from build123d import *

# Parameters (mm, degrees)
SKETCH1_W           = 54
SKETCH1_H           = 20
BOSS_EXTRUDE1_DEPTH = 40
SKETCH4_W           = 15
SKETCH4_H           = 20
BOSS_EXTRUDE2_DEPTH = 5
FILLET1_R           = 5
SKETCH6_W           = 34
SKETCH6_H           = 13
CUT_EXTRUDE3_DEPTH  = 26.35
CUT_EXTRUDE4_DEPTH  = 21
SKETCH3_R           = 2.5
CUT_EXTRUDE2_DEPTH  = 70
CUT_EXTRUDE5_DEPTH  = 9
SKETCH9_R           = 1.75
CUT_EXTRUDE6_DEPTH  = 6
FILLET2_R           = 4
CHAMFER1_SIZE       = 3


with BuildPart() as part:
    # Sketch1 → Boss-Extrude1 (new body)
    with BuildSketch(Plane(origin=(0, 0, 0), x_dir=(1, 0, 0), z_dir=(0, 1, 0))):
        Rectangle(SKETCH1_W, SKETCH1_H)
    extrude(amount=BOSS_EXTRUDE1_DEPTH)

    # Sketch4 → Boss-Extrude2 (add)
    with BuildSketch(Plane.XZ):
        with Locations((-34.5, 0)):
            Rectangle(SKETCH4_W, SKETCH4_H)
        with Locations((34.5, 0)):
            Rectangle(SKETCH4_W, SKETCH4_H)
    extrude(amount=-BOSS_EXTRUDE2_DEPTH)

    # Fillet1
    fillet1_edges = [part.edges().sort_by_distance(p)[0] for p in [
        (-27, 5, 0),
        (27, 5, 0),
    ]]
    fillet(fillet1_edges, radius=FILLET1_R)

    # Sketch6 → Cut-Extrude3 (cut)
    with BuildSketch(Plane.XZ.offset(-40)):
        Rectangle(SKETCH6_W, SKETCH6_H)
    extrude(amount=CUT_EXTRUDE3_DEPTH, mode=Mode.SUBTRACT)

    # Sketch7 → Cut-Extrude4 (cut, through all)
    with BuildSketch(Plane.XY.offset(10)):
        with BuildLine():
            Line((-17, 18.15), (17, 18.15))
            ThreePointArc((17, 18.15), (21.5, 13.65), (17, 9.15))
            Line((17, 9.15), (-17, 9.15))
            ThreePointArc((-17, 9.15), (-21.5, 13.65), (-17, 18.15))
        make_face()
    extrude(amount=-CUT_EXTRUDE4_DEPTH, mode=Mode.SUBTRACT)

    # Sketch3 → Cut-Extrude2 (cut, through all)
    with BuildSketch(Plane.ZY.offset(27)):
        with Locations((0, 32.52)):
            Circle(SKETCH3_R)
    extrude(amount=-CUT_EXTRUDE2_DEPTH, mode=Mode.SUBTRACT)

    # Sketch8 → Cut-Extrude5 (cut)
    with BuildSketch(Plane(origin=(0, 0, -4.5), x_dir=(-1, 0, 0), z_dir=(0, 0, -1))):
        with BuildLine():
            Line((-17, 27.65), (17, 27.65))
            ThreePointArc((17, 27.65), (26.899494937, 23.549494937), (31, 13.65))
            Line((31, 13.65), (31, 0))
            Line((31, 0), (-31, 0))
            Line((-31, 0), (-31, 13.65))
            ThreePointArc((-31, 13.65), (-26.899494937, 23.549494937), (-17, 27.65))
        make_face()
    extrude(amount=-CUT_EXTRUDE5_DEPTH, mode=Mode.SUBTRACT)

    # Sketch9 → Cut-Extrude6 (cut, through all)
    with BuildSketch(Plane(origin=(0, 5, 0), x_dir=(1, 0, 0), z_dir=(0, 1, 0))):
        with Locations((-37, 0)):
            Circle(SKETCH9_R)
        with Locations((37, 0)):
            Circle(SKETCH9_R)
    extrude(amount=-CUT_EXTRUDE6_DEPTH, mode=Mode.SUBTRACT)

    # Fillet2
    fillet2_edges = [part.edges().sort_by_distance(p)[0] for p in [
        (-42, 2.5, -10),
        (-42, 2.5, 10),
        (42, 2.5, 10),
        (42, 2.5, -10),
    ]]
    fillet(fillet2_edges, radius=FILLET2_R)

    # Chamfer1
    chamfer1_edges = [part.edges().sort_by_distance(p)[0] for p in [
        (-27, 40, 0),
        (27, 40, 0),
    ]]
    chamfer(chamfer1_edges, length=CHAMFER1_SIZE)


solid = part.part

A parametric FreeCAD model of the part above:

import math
import FreeCAD as App
import Part
import Sketcher
from FreeCAD import Vector


def edges_at(feature, points):
    """Names of the edges that pass closest to the given points."""
    edges = feature.Shape.Edges
    near = lambda p: min(range(len(edges)), key=lambda i: edges[i].distToShape(Part.Vertex(*p))[0])
    return sorted({f"Edge{near(p) + 1}" for p in points})

doc = App.newDocument("Part")
body = doc.addObject("PartDesign::Body", "Body")

# Sketch on XZ plane
sketch1 = doc.addObject("Sketcher::SketchObject", "Sketch")
body.addObject(sketch1)
sketch1.AttachmentSupport = (doc.XZ_Plane, [""])
sketch1.MapMode = "FlatFace"
sketch1.addGeometry([
    Part.LineSegment(Vector(-27, -10, 0), Vector(-27, 10, 0)),
    Part.LineSegment(Vector(-27, 10, 0), Vector(27, 10, 0)),
    Part.LineSegment(Vector(27, 10, 0), Vector(27, -10, 0)),
    Part.LineSegment(Vector(27, -10, 0), Vector(-27, -10, 0)),
], False)
sketch1.addConstraint([
    Sketcher.Constraint("Coincident", 0, 2, 1, 1),
    Sketcher.Constraint("Coincident", 1, 2, 2, 1),
    Sketcher.Constraint("Coincident", 2, 2, 3, 1),
    Sketcher.Constraint("Coincident", 3, 2, 0, 1),
    Sketcher.Constraint("Vertical", 0),
    Sketcher.Constraint("Horizontal", 1),
    Sketcher.Constraint("Vertical", 2),
    Sketcher.Constraint("Horizontal", 3),
    Sketcher.Constraint("Symmetric", 0, 2, 2, 2, -1, 1),
    Sketcher.Constraint("DistanceX", 1, 1, 1, 2, 54.0),
    Sketcher.Constraint("DistanceY", 0, 1, 0, 2, 20.0),
])
pad1 = doc.addObject("PartDesign::Pad", "Pad")
body.addObject(pad1)
pad1.Profile = sketch1
pad1.Length = 40
pad1.Reversed = True

# Sketch on XZ plane
sketch2 = doc.addObject("Sketcher::SketchObject", "Sketch001")
body.addObject(sketch2)
sketch2.AttachmentSupport = (doc.XZ_Plane, [""])
sketch2.MapMode = "FlatFace"
sketch2.addGeometry([
    Part.LineSegment(Vector(-42, 10, 0), Vector(-42, -10, 0)),  # 0
    Part.LineSegment(Vector(-42, -10, 0), Vector(-27, -10, 0)),  # 1
    Part.LineSegment(Vector(-27, -10, 0), Vector(-27, 10, 0)),  # 2
    Part.LineSegment(Vector(-27, 10, 0), Vector(-42, 10, 0)),  # 3
    Part.LineSegment(Vector(27, 10, 0), Vector(27, -10, 0)),  # 4
    Part.LineSegment(Vector(27, -10, 0), Vector(42, -10, 0)),  # 5
    Part.LineSegment(Vector(42, -10, 0), Vector(42, 10, 0)),  # 6
    Part.LineSegment(Vector(42, 10, 0), Vector(27, 10, 0)),  # 7
], False)
sketch2.addConstraint([
    Sketcher.Constraint("Coincident", 0, 2, 1, 1),
    Sketcher.Constraint("Coincident", 1, 2, 2, 1),
    Sketcher.Constraint("Coincident", 2, 2, 3, 1),
    Sketcher.Constraint("Coincident", 3, 2, 0, 1),
    Sketcher.Constraint("Coincident", 4, 2, 5, 1),
    Sketcher.Constraint("Coincident", 5, 2, 6, 1),
    Sketcher.Constraint("Coincident", 6, 2, 7, 1),
    Sketcher.Constraint("Coincident", 7, 2, 4, 1),
    Sketcher.Constraint("Vertical", 0),
    Sketcher.Constraint("Horizontal", 1),
    Sketcher.Constraint("Vertical", 2),
    Sketcher.Constraint("Horizontal", 3),
    Sketcher.Constraint("Vertical", 4),
    Sketcher.Constraint("Horizontal", 5),
    Sketcher.Constraint("Vertical", 6),
    Sketcher.Constraint("Horizontal", 7),
    Sketcher.Constraint("Symmetric", 2, 2, 4, 2, -1, 1),
    Sketcher.Constraint("Symmetric", 0, 2, 6, 2, -1, 1),
    Sketcher.Constraint("Horizontal", 1, 2, 4, 2),
    Sketcher.Constraint("DistanceX", 1, 1, 1, 2, 15.0),
    Sketcher.Constraint("DistanceY", 0, 2, 0, 1, 20.0),
    Sketcher.Constraint("DistanceX", 0, 2, -1, 1, 42.0),
])
pad2 = doc.addObject("PartDesign::Pad", "Pad001")
body.addObject(pad2)
pad2.Profile = sketch2
pad2.Length = 5
pad2.Reversed = True
doc.recompute()

fillet = doc.addObject("PartDesign::Fillet", "Fillet")
body.addObject(fillet)
fillet.Base = (pad2, edges_at(pad2, [(-27, 5, 0), (27, 5, 0)]))
fillet.Radius = 5

# Sketch on XZ plane
sketch3 = doc.addObject("Sketcher::SketchObject", "Sketch002")
body.addObject(sketch3)
sketch3.AttachmentSupport = (doc.XZ_Plane, [""])
sketch3.MapMode = "FlatFace"
sketch3.AttachmentOffset = App.Placement(Vector(0, 0, -40), App.Rotation())
sketch3.addGeometry([
    Part.LineSegment(Vector(-17, 6, 0), Vector(-17, -6, 0)),
    Part.LineSegment(Vector(-17, -6, 0), Vector(17, -6, 0)),
    Part.LineSegment(Vector(17, -6, 0), Vector(17, 6, 0)),
    Part.LineSegment(Vector(17, 6, 0), Vector(-17, 6, 0)),
], False)
sketch3.addConstraint([
    Sketcher.Constraint("Coincident", 0, 2, 1, 1),
    Sketcher.Constraint("Coincident", 1, 2, 2, 1),
    Sketcher.Constraint("Coincident", 2, 2, 3, 1),
    Sketcher.Constraint("Coincident", 3, 2, 0, 1),
    Sketcher.Constraint("Vertical", 0),
    Sketcher.Constraint("Horizontal", 1),
    Sketcher.Constraint("Vertical", 2),
    Sketcher.Constraint("Horizontal", 3),
    Sketcher.Constraint("Symmetric", 0, 2, 2, 2, -1, 1),
    Sketcher.Constraint("DistanceX", 1, 1, 1, 2, 34.0),
    Sketcher.Constraint("DistanceY", 0, 2, 0, 1, 13.0),
])
pocket1 = doc.addObject("PartDesign::Pocket", "Pocket")
body.addObject(pocket1)
pocket1.Profile = sketch3
pocket1.Length = 26.35
pocket1.Reversed = True

# Sketch on XY plane
sketch4 = doc.addObject("Sketcher::SketchObject", "Sketch003")
body.addObject(sketch4)
sketch4.AttachmentSupport = (doc.XY_Plane, [""])
sketch4.MapMode = "FlatFace"
sketch4.AttachmentOffset = App.Placement(Vector(0, 0, 10), App.Rotation())
sketch4.addGeometry([
    Part.LineSegment(Vector(17, 18.1, 0), Vector(-17, 18.1, 0)),
    Part.ArcOfCircle(Part.Circle(Vector(-17, 13.7, 0), Vector(0, 0, 1), 4.5), math.radians(90), math.radians(270)),
    Part.LineSegment(Vector(-17, 9.2, 0), Vector(17, 9.2, 0)),
    Part.ArcOfCircle(Part.Circle(Vector(17, 13.7, 0), Vector(0, 0, 1), 4.5), math.radians(-90), math.radians(90)),
], False)
sketch4.addConstraint([
    Sketcher.Constraint("Tangent", 0, 2, 1, 1),
    Sketcher.Constraint("Tangent", 1, 2, 2, 1),
    Sketcher.Constraint("Tangent", 2, 2, 3, 1),
    Sketcher.Constraint("Tangent", 3, 2, 0, 1),
    Sketcher.Constraint("Horizontal", 0),
    Sketcher.Constraint("Horizontal", 2),
    Sketcher.Constraint("Radius", 1, 4.5),
    Sketcher.Constraint("DistanceX", 0, 2, 0, 1, 34.0),
    Sketcher.Constraint("DistanceX", 1, 3, -1, 1, 17.0),
    Sketcher.Constraint("DistanceY", -1, 1, 1, 3, 13.65),
])
pocket2 = doc.addObject("PartDesign::Pocket", "Pocket001")
body.addObject(pocket2)
pocket2.Profile = sketch4
pocket2.Type = "ThroughAll"

# Sketch on YZ plane
sketch5 = doc.addObject("Sketcher::SketchObject", "Sketch004")
body.addObject(sketch5)
sketch5.AttachmentSupport = (doc.YZ_Plane, [""])
sketch5.MapMode = "FlatFace"
sketch5.AttachmentOffset = App.Placement(Vector(0, 0, -27), App.Rotation())
sketch5.addGeometry(Part.Circle(Vector(32.5, 0, 0), Vector(0, 0, 1), 2.5), False)
sketch5.addConstraint([
    Sketcher.Constraint("PointOnObject", 0, 3, -1),
    Sketcher.Constraint("Diameter", 0, 5.0),
    Sketcher.Constraint("DistanceX", -1, 1, 0, 3, 32.52),
])
pocket3 = doc.addObject("PartDesign::Pocket", "Pocket002")
body.addObject(pocket3)
pocket3.Profile = sketch5
pocket3.Type = "ThroughAll"
pocket3.Reversed = True

# Sketch on XY plane
sketch6 = doc.addObject("Sketcher::SketchObject", "Sketch005")
body.addObject(sketch6)
sketch6.AttachmentSupport = (doc.XY_Plane, [""])
sketch6.MapMode = "FlatFace"
sketch6.AttachmentOffset = App.Placement(Vector(0, 0, -4.5), App.Rotation())
sketch6.addGeometry([
    Part.LineSegment(Vector(-17, 28, 0), Vector(17, 28, 0)),  # 0
    Part.ArcOfCircle(Part.Circle(Vector(17, 14, 0), Vector(0, 0, 1), 14), math.radians(0), math.radians(90)),  # 1
    Part.LineSegment(Vector(31, 14, 0), Vector(31, 0, 0)),  # 2
    Part.LineSegment(Vector(31, 0, 0), Vector(-31, 0, 0)),  # 3
    Part.LineSegment(Vector(-31, 0, 0), Vector(-31, 14, 0)),  # 4
    Part.ArcOfCircle(Part.Circle(Vector(-17, 14, 0), Vector(0, 0, 1), 14), math.radians(90), math.radians(180)),  # 5
], False)
sketch6.addConstraint([
    Sketcher.Constraint("Tangent", 0, 2, 1, 2),
    Sketcher.Constraint("Tangent", 1, 1, 2, 1),
    Sketcher.Constraint("Coincident", 2, 2, 3, 1),
    Sketcher.Constraint("Coincident", 3, 2, 4, 1),
    Sketcher.Constraint("Tangent", 4, 2, 5, 2),
    Sketcher.Constraint("Tangent", 5, 1, 0, 1),
    Sketcher.Constraint("Horizontal", 0),
    Sketcher.Constraint("Vertical", 2),
    Sketcher.Constraint("Horizontal", 3),
    Sketcher.Constraint("Vertical", 4),
    Sketcher.Constraint("Equal", 1, 5),
    Sketcher.Constraint("Symmetric", 2, 2, 3, 2, -1, 1),
    Sketcher.Constraint("Radius", 1, 14.0),
    Sketcher.Constraint("DistanceX", 0, 1, 0, 2, 34.0),
    Sketcher.Constraint("DistanceY", 2, 2, 2, 1, 13.65),
])
pocket4 = doc.addObject("PartDesign::Pocket", "Pocket003")
body.addObject(pocket4)
pocket4.Profile = sketch6
pocket4.Length = 9
pocket4.Reversed = True

# Sketch on XZ plane
sketch7 = doc.addObject("Sketcher::SketchObject", "Sketch006")
body.addObject(sketch7)
sketch7.AttachmentSupport = (doc.XZ_Plane, [""])
sketch7.MapMode = "FlatFace"
sketch7.AttachmentOffset = App.Placement(Vector(0, 0, -5), App.Rotation())
sketch7.addGeometry([
    Part.Circle(Vector(-37, 0, 0), Vector(0, 0, 1), 1.8),
    Part.Circle(Vector(37, 0, 0), Vector(0, 0, 1), 1.8),
], False)
sketch7.addConstraint([
    Sketcher.Constraint("Equal", 0, 1),
    Sketcher.Constraint("Symmetric", 0, 3, 1, 3, -1, 1),
    Sketcher.Constraint("PointOnObject", 0, 3, -1),
    Sketcher.Constraint("Diameter", 0, 3.5),
    Sketcher.Constraint("DistanceX", 0, 3, -1, 1, 37.0),
])
pocket5 = doc.addObject("PartDesign::Pocket", "Pocket004")
body.addObject(pocket5)
pocket5.Profile = sketch7
pocket5.Type = "ThroughAll"
pocket5.Reversed = True
doc.recompute()

fillet2 = doc.addObject("PartDesign::Fillet", "Fillet001")
body.addObject(fillet2)
fillet2.Base = (pocket5, edges_at(pocket5, [
    (-42, 2.5, -10),
    (-42, 2.5, 10),
    (42, 2.5, 10),
    (42, 2.5, -10),
]))
fillet2.Radius = 4
doc.recompute()

chamfer = doc.addObject("PartDesign::Chamfer", "Chamfer")
body.addObject(chamfer)
chamfer.Base = (fillet2, edges_at(fillet2, [(-27, 40, 0), (27, 40, 0)]))
chamfer.Size = 3

doc.recompute()
